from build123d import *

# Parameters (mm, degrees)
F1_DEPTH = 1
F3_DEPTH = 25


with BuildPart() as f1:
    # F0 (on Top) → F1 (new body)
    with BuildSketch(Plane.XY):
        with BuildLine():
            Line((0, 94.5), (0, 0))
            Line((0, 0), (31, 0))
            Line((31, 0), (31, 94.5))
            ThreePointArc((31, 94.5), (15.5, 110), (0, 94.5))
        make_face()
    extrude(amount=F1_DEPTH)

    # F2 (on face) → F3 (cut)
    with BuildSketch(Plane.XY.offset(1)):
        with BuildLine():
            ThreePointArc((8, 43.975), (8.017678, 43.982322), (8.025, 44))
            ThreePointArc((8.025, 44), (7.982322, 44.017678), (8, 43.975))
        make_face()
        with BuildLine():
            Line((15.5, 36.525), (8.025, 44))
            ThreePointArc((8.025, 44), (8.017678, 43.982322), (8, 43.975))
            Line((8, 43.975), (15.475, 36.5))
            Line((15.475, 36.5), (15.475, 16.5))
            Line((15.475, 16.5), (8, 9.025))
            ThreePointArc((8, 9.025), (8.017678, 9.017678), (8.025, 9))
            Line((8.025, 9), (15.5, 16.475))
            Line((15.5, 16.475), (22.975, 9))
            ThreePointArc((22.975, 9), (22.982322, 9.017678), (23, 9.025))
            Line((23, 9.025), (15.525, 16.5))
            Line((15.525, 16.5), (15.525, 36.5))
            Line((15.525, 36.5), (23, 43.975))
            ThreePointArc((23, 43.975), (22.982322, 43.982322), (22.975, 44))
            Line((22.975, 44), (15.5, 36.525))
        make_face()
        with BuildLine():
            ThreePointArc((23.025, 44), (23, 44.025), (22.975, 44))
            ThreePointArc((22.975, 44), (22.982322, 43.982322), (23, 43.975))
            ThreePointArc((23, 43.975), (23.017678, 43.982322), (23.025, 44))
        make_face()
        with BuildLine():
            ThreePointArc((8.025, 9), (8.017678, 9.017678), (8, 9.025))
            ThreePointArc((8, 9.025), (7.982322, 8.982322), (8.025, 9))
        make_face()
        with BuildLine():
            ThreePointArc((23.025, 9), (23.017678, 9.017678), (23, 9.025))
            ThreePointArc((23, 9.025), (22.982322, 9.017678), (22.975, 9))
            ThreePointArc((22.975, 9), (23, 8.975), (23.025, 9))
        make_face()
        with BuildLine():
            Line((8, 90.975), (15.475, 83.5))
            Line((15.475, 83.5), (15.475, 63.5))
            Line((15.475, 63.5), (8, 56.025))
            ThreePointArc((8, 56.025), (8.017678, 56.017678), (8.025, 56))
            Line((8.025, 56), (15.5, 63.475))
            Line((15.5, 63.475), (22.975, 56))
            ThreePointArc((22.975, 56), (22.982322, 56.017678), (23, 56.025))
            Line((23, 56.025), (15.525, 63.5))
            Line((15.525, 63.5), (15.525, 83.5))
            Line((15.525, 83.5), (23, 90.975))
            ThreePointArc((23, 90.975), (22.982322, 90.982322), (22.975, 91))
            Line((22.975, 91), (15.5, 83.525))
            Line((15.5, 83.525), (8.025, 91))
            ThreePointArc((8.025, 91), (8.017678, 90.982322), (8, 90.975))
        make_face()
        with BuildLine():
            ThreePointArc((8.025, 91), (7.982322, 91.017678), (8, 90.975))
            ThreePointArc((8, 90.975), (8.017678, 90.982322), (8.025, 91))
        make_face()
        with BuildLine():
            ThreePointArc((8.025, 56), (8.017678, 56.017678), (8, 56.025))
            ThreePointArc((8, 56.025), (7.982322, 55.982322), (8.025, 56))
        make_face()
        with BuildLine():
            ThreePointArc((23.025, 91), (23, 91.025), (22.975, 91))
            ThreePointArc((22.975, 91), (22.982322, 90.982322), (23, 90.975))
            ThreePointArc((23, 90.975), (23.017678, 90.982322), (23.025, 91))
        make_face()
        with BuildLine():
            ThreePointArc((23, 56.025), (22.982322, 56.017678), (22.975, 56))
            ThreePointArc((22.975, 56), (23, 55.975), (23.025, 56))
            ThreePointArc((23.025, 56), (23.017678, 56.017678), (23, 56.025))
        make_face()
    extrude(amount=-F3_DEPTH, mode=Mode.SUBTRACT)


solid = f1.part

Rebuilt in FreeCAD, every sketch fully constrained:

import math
import FreeCAD as App
import Part
import Sketcher
from FreeCAD import Vector
Q = App.Units.Quantity

doc = App.newDocument("Part")
body = doc.addObject("PartDesign::Body", "Body")

# Sketch on XY plane
sketch1 = body.newObject("Sketcher::SketchObject", "Sketch")
sketch1.AttachmentSupport = (doc.getObject("XY_Plane"), [""])
sketch1.MapMode = "FlatFace"
sketch1.addGeometry(Part.LineSegment(Vector(0, 94, 0), Vector(0, 0, 0)), False)
sketch1.addGeometry(Part.LineSegment(Vector(0, 0, 0), Vector(31, 0, 0)), False)
sketch1.addGeometry(Part.LineSegment(Vector(31, 0, 0), Vector(31, 94, 0)), False)
sketch1.addGeometry(Part.ArcOfCircle(Part.Circle(Vector(16, 94, 0), Vector(0, 0, 1), 16), math.radians(0), math.radians(180)), False)
sketch1.addConstraint(Sketcher.Constraint("Coincident", 0, 2, 1, 1))
sketch1.addConstraint(Sketcher.Constraint("Coincident", 1, 2, 2, 1))
sketch1.addConstraint(Sketcher.Constraint("Tangent", 2, 2, 3, 1))
sketch1.addConstraint(Sketcher.Constraint("Tangent", 3, 2, 0, 1))
sketch1.addConstraint(Sketcher.Constraint("Vertical", 0))
sketch1.addConstraint(Sketcher.Constraint("Horizontal", 1))
sketch1.addConstraint(Sketcher.Constraint("Vertical", 2))
sketch1.addConstraint(Sketcher.Constraint("Coincident", 0, 2, -1, 1))
sketch1.addConstraint(Sketcher.Constraint("Radius", 3, Q("15.5 mm")))
sketch1.addConstraint(Sketcher.Constraint("DistanceY", 0, 2, 0, 1, Q("94.5 mm")))
pad1 = body.newObject("PartDesign::Pad", "Pad")
pad1.Profile = sketch1
pad1.Length = 1

# Sketch on XY plane
sketch2 = body.newObject("Sketcher::SketchObject", "Sketch001")
sketch2.AttachmentSupport = (doc.getObject("XY_Plane"), [""])
sketch2.MapMode = "FlatFace"
sketch2.AttachmentOffset = App.Placement(Vector(0, 0, 1), App.Rotation())
sketch2.addGeometry(Part.ArcOfCircle(Part.Circle(Vector(8, 44, 0), Vector(0, 0, 1), 0.025), math.radians(0), math.radians(270)), False)
sketch2.addGeometry(Part.LineSegment(Vector(8, 43.975, 0), Vector(15.475, 36.5, 0)), False)
sketch2.addGeometry(Part.LineSegment(Vector(15.475, 36.5, 0), Vector(15.475, 16.5, 0)), False)
sketch2.addGeometry(Part.LineSegment(Vector(15.475, 16.5, 0), Vector(8, 9.025, 0)), False)
sketch2.addGeometry(Part.ArcOfCircle(Part.Circle(Vector(8, 9, 0), Vector(0, 0, 1), 0.025), math.radians(90), math.radians(360)), False)
sketch2.addGeometry(Part.LineSegment(Vector(8.025, 9, 0), Vector(15.5, 16.475, 0)), False)
sketch2.addGeometry(Part.LineSegment(Vector(15.5, 16.475, 0), Vector(22.975, 9, 0)), False)
sketch2.addGeometry(Part.ArcOfCircle(Part.Circle(Vector(23, 9, 0), Vector(0, 0, 1), 0.025), math.radians(180), math.radians(360)), False)
sketch2.addGeometry(Part.ArcOfCircle(Part.Circle(Vector(23, 9, 0), Vector(0, 0, 1), 0.025), math.radians(0), math.radians(90)), False)
sketch2.addGeometry(Part.LineSegment(Vector(23, 9.025, 0), Vector(15.525, 16.5, 0)), False)
sketch2.addGeometry(Part.LineSegment(Vector(15.525, 16.5, 0), Vector(15.525, 36.5, 0)), False)
sketch2.addGeometry(Part.LineSegment(Vector(15.525, 36.5, 0), Vector(23, 43.975, 0)), False)
sketch2.addGeometry(Part.ArcOfCircle(Part.Circle(Vector(23, 44, 0), Vector(0, 0, 1), 0.025), math.radians(-90), math.radians(0)), False)
sketch2.addGeometry(Part.ArcOfCircle(Part.Circle(Vector(23, 44, 0), Vector(0, 0, 1), 0.025), math.radians(0), math.radians(180)), False)
sketch2.addGeometry(Part.LineSegment(Vector(22.975, 44, 0), Vector(15.5, 36.525, 0)), False)
sketch2.addGeometry(Part.LineSegment(Vector(15.5, 36.525, 0), Vector(8.025, 44, 0)), False)
sketch2.addGeometry(Part.LineSegment(Vector(8, 90.975, 0), Vector(15.475, 83.5, 0)), False)
sketch2.addGeometry(Part.LineSegment(Vector(15.475, 83.5, 0), Vector(15.475, 63.5, 0)), False)
sketch2.addGeometry(Part.LineSegment(Vector(15.475, 63.5, 0), Vector(8, 56.025, 0)), False)
sketch2.addGeometry(Part.ArcOfCircle(Part.Circle(Vector(8, 56, 0), Vector(0, 0, 1), 0.025), math.radians(90), math.radians(360)), False)
sketch2.addGeometry(Part.LineSegment(Vector(8.025, 56, 0), Vector(15.5, 63.475, 0)), False)
sketch2.addGeometry(Part.LineSegment(Vector(15.5, 63.475, 0), Vector(22.975, 56, 0)), False)
sketch2.addGeometry(Part.ArcOfCircle(Part.Circle(Vector(23, 56, 0), Vector(0, 0, 1), 0.025), math.radians(180), math.radians(360)), False)
sketch2.addGeometry(Part.ArcOfCircle(Part.Circle(Vector(23, 56, 0), Vector(0, 0, 1), 0.025), math.radians(0), math.radians(90)), False)
sketch2.addGeometry(Part.LineSegment(Vector(23, 56.025, 0), Vector(15.525, 63.5, 0)), False)
sketch2.addGeometry(Part.LineSegment(Vector(15.525, 63.5, 0), Vector(15.525, 83.5, 0)), False)
sketch2.addGeometry(Part.LineSegment(Vector(15.525, 83.5, 0), Vector(23, 90.975, 0)), False)
sketch2.addGeometry(Part.ArcOfCircle(Part.Circle(Vector(23, 91, 0), Vector(0, 0, 1), 0.025), math.radians(-90), math.radians(0)), False)
sketch2.addGeometry(Part.ArcOfCircle(Part.Circle(Vector(23, 91, 0), Vector(0, 0, 1), 0.025), math.radians(0), math.radians(180)), False)
sketch2.addGeometry(Part.LineSegment(Vector(22.975, 91, 0), Vector(15.5, 83.525, 0)), False)
sketch2.addGeometry(Part.LineSegment(Vector(15.5, 83.525, 0), Vector(8.025, 91, 0)), False)
sketch2.addGeometry(Part.ArcOfCircle(Part.Circle(Vector(8, 91, 0), Vector(0, 0, 1), 0.025), math.radians(0), math.radians(270)), False)
sketch2.addConstraint(Sketcher.Constraint("Coincident", 0, 2, 1, 1))
sketch2.addConstraint(Sketcher.Constraint("Coincident", 1, 2, 2, 1))
sketch2.addConstraint(Sketcher.Constraint("Coincident", 2, 2, 3, 1))
sketch2.addConstraint(Sketcher.Constraint("Coincident", 3, 2, 4, 1))
sketch2.addConstraint(Sketcher.Constraint("Coincident", 4, 2, 5, 1))
sketch2.addConstraint(Sketcher.Constraint("Coincident", 5, 2, 6, 1))
sketch2.addConstraint(Sketcher.Constraint("Coincident", 6, 2, 7, 1))
sketch2.addConstraint(Sketcher.Constraint("Coincident", 7, 2, 8, 1))
sketch2.addConstraint(Sketcher.Constraint("Coincident", 8, 2, 9, 1))
sketch2.addConstraint(Sketcher.Constraint("Coincident", 9, 2, 10, 1))
sketch2.addConstraint(Sketcher.Constraint("Coincident", 10, 2, 11, 1))
sketch2.addConstraint(Sketcher.Constraint("Coincident", 11, 2, 12, 1))
sketch2.addConstraint(Sketcher.Constraint("Coincident", 12, 2, 13, 1))
sketch2.addConstraint(Sketcher.Constraint("Coincident", 13, 2, 14, 1))
sketch2.addConstraint(Sketcher.Constraint("Coincident", 14, 2, 15, 1))
sketch2.addConstraint(Sketcher.Constraint("Coincident", 15, 2, 0, 1))
sketch2.addConstraint(Sketcher.Constraint("Coincident", 16, 2, 17, 1))
sketch2.addConstraint(Sketcher.Constraint("Coincident", 17, 2, 18, 1))
sketch2.addConstraint(Sketcher.Constraint("Coincident", 18, 2, 19, 1))
sketch2.addConstraint(Sketcher.Constraint("Coincident", 19, 2, 20, 1))
sketch2.addConstraint(Sketcher.Constraint("Coincident", 20, 2, 21, 1))
sketch2.addConstraint(Sketcher.Constraint("Coincident", 21, 2, 22, 1))
sketch2.addConstraint(Sketcher.Constraint("Coincident", 22, 2, 23, 1))
sketch2.addConstraint(Sketcher.Constraint("Coincident", 23, 2, 24, 1))
sketch2.addConstraint(Sketcher.Constraint("Coincident", 24, 2, 25, 1))
sketch2.addConstraint(Sketcher.Constraint("Coincident", 25, 2, 26, 1))
sketch2.addConstraint(Sketcher.Constraint("Coincident", 26, 2, 27, 1))
sketch2.addConstraint(Sketcher.Constraint("Coincident", 27, 2, 28, 1))
sketch2.addConstraint(Sketcher.Constraint("Coincident", 28, 2, 29, 1))
sketch2.addConstraint(Sketcher.Constraint("Coincident", 29, 2, 30, 1))
sketch2.addConstraint(Sketcher.Constraint("Coincident", 30, 2, 31, 1))
sketch2.addConstraint(Sketcher.Constraint("Coincident", 31, 2, 16, 1))
sketch2.addConstraint(Sketcher.Constraint("Vertical", 2))
sketch2.addConstraint(Sketcher.Constraint("Vertical", 10))
sketch2.addConstraint(Sketcher.Constraint("Vertical", 17))
sketch2.addConstraint(Sketcher.Constraint("Vertical", 25))
sketch2.addConstraint(Sketcher.Constraint("Coincident", 8, 3, 7, 3))
sketch2.addConstraint(Sketcher.Constraint("Coincident", 13, 3, 12, 3))
sketch2.addConstraint(Sketcher.Constraint("Coincident", 23, 3, 22, 3))
sketch2.addConstraint(Sketcher.Constraint("Coincident", 28, 3, 27, 3))
sketch2.addConstraint(Sketcher.Constraint("Equal", 0, 4))
sketch2.addConstraint(Sketcher.Constraint("Equal", 4, 7))
sketch2.addConstraint(Sketcher.Constraint("Equal", 8, 12))
sketch2.addConstraint(Sketcher.Constraint("Equal", 13, 19))
sketch2.addConstraint(Sketcher.Constraint("Equal", 19, 22))
sketch2.addConstraint(Sketcher.Constraint("Equal", 23, 27))
sketch2.addConstraint(Sketcher.Constraint("Equal", 28, 31))
sketch2.addConstraint(Sketcher.Constraint("Perpendicular", 1, 3))
sketch2.addConstraint(Sketcher.Constraint("Parallel", 3, 5))
sketch2.addConstraint(Sketcher.Constraint("Perpendicular", 5, 6))
sketch2.addConstraint(Sketcher.Constraint("Parallel", 6, 9))
sketch2.addConstraint(Sketcher.Constraint("Perpendicular", 9, 11))
sketch2.addConstraint(Sketcher.Constraint("Parallel", 11, 14))
sketch2.addConstraint(Sketcher.Constraint("Perpendicular", 14, 15))
sketch2.addConstraint(Sketcher.Constraint("Parallel", 15, 16))
sketch2.addConstraint(Sketcher.Constraint("Perpendicular", 16, 18))
sketch2.addConstraint(Sketcher.Constraint("Parallel", 18, 20))
sketch2.addConstraint(Sketcher.Constraint("Perpendicular", 20, 21))
sketch2.addConstraint(Sketcher.Constraint("Parallel", 21, 24))
sketch2.addConstraint(Sketcher.Constraint("Perpendicular", 24, 26))
sketch2.addConstraint(Sketcher.Constraint("Parallel", 26, 29))
sketch2.addConstraint(Sketcher.Constraint("Perpendicular", 29, 30))
sketch2.addConstraint(Sketcher.Constraint("Horizontal", 4, 3, 7, 3))
sketch2.addConstraint(Sketcher.Constraint("Horizontal", 0, 3, 12, 3))
sketch2.addConstraint(Sketcher.Constraint("Horizontal", 19, 3, 22, 3))
sketch2.addConstraint(Sketcher.Constraint("Horizontal", 28, 3, 31, 3))
sketch2.addConstraint(Sketcher.Constraint("Horizontal", 8, 3, 4, 2))
sketch2.addConstraint(Sketcher.Constraint("Horizontal", 4, 2, 6, 2))
sketch2.addConstraint(Sketcher.Constraint("Horizontal", 6, 2, 7, 2))
sketch2.addConstraint(Sketcher.Constraint("Horizontal", 2, 2, 9, 2))
sketch2.addConstraint(Sketcher.Constraint("Horizontal", 1, 2, 10, 2))
sketch2.addConstraint(Sketcher.Constraint("Horizontal", 13, 3, 12, 2))
sketch2.addConstraint(Sketcher.Constraint("Horizontal", 12, 2, 13, 2))
sketch2.addConstraint(Sketcher.Constraint("Horizontal", 13, 2, 15, 2))
sketch2.addConstraint(Sketcher.Constraint("Horizontal", 23, 3, 19, 2))
sketch2.addConstraint(Sketcher.Constraint("Horizontal", 19, 2, 21, 2))
sketch2.addConstraint(Sketcher.Constraint("Horizontal", 21, 2, 22, 2))
sketch2.addConstraint(Sketcher.Constraint("Horizontal", 17, 2, 24, 2))
sketch2.addConstraint(Sketcher.Constraint("Horizontal", 16, 2, 25, 2))
sketch2.addConstraint(Sketcher.Constraint("Horizontal", 31, 3, 27, 2))
sketch2.addConstraint(Sketcher.Constraint("Horizontal", 27, 2, 28, 2))
sketch2.addConstraint(Sketcher.Constraint("Horizontal", 28, 2, 30, 2))
sketch2.addConstraint(Sketcher.Constraint("Vertical", 0, 3, 4, 3))
sketch2.addConstraint(Sketcher.Constraint("Vertical", 8, 3, 12, 3))
sketch2.addConstraint(Sketcher.Constraint("Vertical", 4, 3, 19, 3))
sketch2.addConstraint(Sketcher.Constraint("Vertical", 13, 3, 22, 3))
sketch2.addConstraint(Sketcher.Constraint("Vertical", 23, 3, 27, 3))
sketch2.addConstraint(Sketcher.Constraint("Vertical", 19, 3, 31, 3))
sketch2.addConstraint(Sketcher.Constraint("Vertical", 31, 3, 0, 2))
sketch2.addConstraint(Sketcher.Constraint("Vertical", 0, 2, 3, 2))
sketch2.addConstraint(Sketcher.Constraint("Vertical", 28, 3, 8, 2))
sketch2.addConstraint(Sketcher.Constraint("Vertical", 8, 2, 11, 2))
sketch2.addConstraint(Sketcher.Constraint("Vertical", 2, 2, 16, 2))
sketch2.addConstraint(Sketcher.Constraint("Vertical", 3, 2, 18, 2))
sketch2.addConstraint(Sketcher.Constraint("Vertical", 11, 2, 23, 2))
sketch2.addConstraint(Sketcher.Constraint("Vertical", 23, 2, 26, 2))
sketch2.addConstraint(Sketcher.Constraint("Equal", 10, 17))
sketch2.addConstraint(Sketcher.Constraint("Equal", 3, 5))
sketch2.addConstraint(Sketcher.Constraint("DistanceY", 2, 2, 2, 1, Q("20 mm")))
sketch2.addConstraint(Sketcher.Constraint("DistanceX", -1, 1, 0, 3, Q("8 mm")))
sketch2.addConstraint(Sketcher.Constraint("DistanceY", -1, 1, 0, 3, Q("44 mm")))
sketch2.addConstraint(Sketcher.Constraint("DistanceY", -1, 1, 4, 3, Q("9 mm")))
sketch2.addConstraint(Sketcher.Constraint("DistanceY", -1, 1, 19, 3, Q("56 mm")))
sketch2.addConstraint(Sketcher.Constraint("Radius", 0, Q("0.025 mm")))
pocket1 = body.newObject("PartDesign::Pocket", "Pocket")
pocket1.Profile = sketch2
pocket1.Length = 25

doc.recompute()
